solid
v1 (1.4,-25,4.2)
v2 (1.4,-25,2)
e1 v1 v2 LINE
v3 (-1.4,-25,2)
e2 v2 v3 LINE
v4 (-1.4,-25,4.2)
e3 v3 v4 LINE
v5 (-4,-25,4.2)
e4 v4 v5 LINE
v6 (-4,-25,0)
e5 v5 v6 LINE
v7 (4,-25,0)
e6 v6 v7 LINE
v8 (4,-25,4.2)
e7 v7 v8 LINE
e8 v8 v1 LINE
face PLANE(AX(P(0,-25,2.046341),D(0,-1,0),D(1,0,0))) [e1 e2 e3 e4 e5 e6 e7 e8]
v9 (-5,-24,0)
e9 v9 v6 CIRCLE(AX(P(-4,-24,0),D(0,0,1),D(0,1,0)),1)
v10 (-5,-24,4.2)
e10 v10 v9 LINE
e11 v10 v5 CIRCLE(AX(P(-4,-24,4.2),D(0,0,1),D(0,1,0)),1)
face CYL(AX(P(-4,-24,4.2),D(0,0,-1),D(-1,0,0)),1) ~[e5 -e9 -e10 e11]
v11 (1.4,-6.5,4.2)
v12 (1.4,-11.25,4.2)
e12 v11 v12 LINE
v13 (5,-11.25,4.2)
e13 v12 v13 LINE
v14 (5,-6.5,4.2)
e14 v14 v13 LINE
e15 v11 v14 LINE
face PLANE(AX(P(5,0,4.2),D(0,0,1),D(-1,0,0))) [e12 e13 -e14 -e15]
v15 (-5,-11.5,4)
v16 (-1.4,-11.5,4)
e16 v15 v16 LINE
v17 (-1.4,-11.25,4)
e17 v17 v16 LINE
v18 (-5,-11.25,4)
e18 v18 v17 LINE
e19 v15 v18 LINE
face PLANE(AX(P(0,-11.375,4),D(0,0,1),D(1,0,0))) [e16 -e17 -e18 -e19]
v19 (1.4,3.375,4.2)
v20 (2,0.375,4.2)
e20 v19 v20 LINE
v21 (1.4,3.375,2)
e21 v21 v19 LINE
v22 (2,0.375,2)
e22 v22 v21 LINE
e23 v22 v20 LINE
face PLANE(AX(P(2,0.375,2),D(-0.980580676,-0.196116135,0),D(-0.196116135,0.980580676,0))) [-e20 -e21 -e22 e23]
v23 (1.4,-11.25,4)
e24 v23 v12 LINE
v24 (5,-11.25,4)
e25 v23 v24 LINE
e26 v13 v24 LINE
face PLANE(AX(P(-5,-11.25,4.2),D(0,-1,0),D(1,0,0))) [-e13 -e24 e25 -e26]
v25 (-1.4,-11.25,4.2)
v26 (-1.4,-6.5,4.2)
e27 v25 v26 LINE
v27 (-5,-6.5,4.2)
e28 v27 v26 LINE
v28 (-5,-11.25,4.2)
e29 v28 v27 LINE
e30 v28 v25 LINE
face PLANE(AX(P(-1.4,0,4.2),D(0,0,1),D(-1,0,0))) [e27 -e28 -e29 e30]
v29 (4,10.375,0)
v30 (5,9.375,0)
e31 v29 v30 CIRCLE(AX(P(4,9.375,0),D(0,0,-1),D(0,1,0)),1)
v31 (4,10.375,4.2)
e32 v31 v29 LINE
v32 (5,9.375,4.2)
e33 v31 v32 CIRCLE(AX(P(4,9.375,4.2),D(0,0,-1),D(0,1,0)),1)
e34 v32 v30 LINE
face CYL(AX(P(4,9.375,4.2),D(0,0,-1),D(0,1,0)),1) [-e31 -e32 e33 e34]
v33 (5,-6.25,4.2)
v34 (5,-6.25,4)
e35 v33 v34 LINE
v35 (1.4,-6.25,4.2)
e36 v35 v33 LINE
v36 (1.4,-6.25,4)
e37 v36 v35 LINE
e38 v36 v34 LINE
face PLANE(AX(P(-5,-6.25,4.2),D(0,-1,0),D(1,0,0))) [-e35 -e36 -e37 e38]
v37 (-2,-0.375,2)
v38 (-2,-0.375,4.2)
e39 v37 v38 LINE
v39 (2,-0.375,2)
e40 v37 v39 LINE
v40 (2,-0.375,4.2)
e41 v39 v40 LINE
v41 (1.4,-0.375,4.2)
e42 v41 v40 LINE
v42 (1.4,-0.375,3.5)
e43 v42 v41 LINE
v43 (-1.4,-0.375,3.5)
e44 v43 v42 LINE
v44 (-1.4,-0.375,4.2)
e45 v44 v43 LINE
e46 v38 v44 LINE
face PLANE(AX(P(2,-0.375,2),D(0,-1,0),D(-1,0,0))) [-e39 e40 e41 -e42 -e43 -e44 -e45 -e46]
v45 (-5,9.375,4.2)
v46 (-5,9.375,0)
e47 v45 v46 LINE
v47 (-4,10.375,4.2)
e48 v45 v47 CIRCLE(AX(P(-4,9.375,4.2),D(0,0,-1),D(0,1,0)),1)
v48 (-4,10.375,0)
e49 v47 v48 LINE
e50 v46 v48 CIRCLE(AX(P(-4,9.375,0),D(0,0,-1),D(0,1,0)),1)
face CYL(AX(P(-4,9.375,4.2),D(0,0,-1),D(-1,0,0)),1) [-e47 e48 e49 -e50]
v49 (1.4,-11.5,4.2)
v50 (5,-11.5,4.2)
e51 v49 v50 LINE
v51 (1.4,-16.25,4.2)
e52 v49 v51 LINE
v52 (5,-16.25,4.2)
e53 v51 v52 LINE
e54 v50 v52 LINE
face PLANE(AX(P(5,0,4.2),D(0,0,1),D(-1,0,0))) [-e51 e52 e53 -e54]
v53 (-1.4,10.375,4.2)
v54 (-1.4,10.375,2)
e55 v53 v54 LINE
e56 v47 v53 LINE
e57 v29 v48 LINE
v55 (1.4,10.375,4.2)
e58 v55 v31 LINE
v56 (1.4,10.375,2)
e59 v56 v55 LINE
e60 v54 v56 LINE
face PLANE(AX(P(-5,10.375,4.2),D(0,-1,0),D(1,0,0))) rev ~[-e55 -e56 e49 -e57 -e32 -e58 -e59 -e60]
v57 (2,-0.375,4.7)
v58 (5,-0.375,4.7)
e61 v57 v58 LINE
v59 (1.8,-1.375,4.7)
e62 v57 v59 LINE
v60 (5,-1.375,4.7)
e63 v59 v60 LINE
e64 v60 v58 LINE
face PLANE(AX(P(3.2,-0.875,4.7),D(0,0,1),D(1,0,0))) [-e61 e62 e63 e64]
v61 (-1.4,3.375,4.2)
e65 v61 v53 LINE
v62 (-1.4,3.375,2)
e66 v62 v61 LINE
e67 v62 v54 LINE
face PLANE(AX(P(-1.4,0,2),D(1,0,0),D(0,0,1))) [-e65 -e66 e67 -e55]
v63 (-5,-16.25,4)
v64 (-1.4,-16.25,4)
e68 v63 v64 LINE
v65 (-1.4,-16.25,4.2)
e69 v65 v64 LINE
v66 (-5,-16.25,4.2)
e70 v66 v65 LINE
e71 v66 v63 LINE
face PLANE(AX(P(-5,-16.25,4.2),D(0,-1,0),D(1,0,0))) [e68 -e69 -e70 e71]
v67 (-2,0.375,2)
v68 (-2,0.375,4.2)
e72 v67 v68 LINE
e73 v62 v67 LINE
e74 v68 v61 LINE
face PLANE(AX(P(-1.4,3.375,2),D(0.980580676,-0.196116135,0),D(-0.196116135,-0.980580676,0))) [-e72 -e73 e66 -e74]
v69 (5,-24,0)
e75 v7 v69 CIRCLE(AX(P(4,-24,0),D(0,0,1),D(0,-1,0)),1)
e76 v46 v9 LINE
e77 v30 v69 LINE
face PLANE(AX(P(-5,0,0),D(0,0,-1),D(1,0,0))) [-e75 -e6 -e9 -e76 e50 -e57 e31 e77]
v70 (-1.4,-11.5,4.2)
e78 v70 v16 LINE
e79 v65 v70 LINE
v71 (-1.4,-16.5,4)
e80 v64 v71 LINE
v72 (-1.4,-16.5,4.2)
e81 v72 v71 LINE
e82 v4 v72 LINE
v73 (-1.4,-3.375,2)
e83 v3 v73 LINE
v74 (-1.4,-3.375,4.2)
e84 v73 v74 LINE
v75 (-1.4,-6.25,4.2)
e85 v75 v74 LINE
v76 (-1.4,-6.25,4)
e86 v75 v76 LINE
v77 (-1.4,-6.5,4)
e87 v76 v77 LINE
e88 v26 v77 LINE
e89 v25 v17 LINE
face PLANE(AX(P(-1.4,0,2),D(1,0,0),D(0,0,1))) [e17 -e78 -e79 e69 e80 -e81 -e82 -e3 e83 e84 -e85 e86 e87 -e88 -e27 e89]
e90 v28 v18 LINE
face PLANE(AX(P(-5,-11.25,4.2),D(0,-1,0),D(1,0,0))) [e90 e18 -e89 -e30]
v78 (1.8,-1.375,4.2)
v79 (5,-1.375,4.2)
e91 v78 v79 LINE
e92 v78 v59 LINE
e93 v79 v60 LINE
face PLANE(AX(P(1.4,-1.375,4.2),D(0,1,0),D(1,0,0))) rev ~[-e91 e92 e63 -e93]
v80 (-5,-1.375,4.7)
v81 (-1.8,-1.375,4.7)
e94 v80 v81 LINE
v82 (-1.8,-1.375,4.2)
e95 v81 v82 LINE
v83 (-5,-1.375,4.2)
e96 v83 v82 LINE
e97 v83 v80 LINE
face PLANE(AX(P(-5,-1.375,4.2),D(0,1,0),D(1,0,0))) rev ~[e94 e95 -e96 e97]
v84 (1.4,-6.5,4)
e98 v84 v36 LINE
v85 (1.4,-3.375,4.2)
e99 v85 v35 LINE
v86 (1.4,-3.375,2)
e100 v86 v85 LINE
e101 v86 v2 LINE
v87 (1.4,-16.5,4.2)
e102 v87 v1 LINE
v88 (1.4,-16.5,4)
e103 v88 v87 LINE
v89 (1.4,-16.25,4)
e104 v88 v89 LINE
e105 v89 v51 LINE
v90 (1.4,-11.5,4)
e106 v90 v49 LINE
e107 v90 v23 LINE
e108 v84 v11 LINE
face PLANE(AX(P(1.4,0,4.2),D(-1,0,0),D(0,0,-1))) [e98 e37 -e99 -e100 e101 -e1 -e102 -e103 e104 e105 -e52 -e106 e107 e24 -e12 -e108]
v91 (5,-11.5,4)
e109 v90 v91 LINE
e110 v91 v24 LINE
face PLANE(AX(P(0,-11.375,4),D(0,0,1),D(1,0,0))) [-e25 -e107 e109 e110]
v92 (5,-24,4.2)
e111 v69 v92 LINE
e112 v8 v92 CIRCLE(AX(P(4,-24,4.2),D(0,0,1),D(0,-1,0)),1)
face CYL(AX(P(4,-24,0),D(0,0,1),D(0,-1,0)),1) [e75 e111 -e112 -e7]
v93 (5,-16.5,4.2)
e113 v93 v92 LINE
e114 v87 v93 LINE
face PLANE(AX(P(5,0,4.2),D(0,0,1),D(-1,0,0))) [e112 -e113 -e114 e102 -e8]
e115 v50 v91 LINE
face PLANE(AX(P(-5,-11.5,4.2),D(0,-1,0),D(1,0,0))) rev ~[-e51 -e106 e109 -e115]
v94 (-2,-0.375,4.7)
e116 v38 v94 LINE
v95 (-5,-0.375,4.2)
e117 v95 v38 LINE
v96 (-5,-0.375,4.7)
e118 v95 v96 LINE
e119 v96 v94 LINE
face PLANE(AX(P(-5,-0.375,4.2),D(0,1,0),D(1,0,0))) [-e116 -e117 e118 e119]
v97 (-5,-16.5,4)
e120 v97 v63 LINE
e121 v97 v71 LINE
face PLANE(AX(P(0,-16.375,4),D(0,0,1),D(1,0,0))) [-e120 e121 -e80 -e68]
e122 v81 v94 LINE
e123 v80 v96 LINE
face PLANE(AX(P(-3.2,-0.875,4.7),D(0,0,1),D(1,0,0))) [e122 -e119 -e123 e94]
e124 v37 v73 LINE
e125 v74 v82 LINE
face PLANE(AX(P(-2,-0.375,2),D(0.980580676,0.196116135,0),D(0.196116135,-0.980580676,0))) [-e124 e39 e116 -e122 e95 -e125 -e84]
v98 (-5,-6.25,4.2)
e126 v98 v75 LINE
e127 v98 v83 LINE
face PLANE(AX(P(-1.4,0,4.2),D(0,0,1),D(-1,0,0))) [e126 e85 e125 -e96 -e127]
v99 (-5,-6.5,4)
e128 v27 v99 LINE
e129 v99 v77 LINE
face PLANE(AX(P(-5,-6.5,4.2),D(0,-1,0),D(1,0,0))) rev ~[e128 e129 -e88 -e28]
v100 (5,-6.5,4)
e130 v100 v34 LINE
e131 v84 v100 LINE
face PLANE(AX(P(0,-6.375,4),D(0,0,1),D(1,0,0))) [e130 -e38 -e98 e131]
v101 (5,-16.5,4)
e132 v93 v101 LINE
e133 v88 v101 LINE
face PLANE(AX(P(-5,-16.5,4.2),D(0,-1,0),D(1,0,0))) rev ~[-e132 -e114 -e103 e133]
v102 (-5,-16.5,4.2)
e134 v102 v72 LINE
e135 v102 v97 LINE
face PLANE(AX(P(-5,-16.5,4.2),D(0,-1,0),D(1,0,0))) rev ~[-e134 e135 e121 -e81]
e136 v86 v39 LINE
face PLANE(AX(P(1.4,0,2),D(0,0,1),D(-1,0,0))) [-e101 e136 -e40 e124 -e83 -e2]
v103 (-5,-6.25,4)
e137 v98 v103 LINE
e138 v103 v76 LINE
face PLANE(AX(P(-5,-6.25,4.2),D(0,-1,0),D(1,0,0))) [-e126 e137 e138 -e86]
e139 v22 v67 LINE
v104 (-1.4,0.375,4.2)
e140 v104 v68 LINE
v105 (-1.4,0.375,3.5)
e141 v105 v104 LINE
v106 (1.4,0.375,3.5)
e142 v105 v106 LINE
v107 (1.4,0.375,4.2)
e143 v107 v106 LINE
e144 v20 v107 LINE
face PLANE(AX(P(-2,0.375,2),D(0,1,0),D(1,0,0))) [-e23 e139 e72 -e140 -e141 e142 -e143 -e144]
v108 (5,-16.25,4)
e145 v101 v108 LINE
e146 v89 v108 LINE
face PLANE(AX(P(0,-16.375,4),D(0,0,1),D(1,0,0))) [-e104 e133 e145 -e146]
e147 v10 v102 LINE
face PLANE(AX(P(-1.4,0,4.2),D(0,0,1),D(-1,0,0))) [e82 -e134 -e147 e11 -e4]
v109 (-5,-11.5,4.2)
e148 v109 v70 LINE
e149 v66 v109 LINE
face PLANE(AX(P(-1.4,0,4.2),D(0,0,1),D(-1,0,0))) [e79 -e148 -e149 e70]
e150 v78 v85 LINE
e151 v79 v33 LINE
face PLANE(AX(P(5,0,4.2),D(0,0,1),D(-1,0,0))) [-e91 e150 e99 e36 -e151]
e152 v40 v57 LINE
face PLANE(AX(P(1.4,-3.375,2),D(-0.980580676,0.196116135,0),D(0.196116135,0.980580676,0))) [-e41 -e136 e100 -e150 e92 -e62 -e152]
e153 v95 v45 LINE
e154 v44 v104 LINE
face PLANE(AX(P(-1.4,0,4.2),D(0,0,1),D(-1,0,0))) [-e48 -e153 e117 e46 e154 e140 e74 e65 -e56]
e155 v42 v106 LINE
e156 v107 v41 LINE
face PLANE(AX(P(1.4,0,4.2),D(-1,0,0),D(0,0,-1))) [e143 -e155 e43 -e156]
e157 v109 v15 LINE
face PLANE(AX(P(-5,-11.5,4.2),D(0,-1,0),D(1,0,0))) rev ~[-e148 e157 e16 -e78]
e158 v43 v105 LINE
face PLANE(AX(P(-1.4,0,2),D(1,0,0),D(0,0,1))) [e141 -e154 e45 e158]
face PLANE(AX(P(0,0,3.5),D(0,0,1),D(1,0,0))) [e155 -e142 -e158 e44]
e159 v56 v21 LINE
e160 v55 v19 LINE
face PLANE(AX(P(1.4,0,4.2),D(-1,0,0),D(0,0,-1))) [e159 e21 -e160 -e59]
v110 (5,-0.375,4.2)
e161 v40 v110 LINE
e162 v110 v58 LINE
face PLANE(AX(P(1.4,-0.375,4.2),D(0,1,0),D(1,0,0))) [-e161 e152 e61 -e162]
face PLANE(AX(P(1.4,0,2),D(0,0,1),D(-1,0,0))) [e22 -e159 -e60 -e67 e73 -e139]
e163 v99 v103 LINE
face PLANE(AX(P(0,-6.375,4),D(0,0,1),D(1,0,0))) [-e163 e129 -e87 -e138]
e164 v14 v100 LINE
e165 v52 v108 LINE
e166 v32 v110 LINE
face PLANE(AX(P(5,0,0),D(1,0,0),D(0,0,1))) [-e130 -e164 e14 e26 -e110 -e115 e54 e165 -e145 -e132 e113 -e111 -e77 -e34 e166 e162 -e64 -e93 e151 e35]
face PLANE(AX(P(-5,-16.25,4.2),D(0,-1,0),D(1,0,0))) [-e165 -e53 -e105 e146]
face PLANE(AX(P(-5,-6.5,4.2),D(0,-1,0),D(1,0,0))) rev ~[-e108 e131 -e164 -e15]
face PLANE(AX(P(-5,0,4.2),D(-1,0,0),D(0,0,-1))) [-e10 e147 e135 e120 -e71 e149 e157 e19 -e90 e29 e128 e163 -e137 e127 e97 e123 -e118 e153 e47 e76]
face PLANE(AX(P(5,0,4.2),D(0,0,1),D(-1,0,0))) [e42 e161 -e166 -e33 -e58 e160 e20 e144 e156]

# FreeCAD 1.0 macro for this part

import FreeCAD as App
import Part
import Sketcher

V = App.Vector


def edges_at(feature, points):
    """Names of the edges that pass closest to the given points."""
    edges = feature.Shape.Edges
    near = lambda p: min(range(len(edges)), key=lambda i: edges[i].distToShape(Part.Vertex(*p))[0])
    return sorted({f"Edge{near(p) + 1}" for p in points})

doc = App.newDocument("Part")
body = doc.addObject("PartDesign::Body", "Body")

sketch1 = body.newObject("Sketcher::SketchObject", "Sketch")
sketch1.AttachmentSupport = (doc.getObject("XZ_Plane"), [""])
sketch1.MapMode = "FlatFace"
sketch1.addGeometry([
    Part.LineSegment(V(-5, 4.2, 0), V(-5, 0, 0)),
    Part.LineSegment(V(-5, 0, 0), V(5, 0, 0)),
    Part.LineSegment(V(5, 0, 0), V(5, 4.2, 0)),
    Part.LineSegment(V(5, 4.2, 0), V(1.4, 4.2, 0)),
    Part.LineSegment(V(1.4, 4.2, 0), V(1.4, 2, 0)),
    Part.LineSegment(V(1.4, 2, 0), V(-1.4, 2, 0)),
    Part.LineSegment(V(-1.4, 2, 0), V(-1.4, 4.2, 0)),
    Part.LineSegment(V(-1.4, 4.2, 0), V(-5, 4.2, 0)),
], False)
sketch1.addConstraint([
    Sketcher.Constraint("Coincident", 0, 2, 1, 1),
    Sketcher.Constraint("Coincident", 1, 2, 2, 1),
    Sketcher.Constraint("Coincident", 2, 2, 3, 1),
    Sketcher.Constraint("Coincident", 3, 2, 4, 1),
    Sketcher.Constraint("Coincident", 4, 2, 5, 1),
    Sketcher.Constraint("Coincident", 5, 2, 6, 1),
    Sketcher.Constraint("Coincident", 6, 2, 7, 1),
    Sketcher.Constraint("Coincident", 7, 2, 0, 1),
    Sketcher.Constraint("Vertical", 0),
    Sketcher.Constraint("Horizontal", 1),
    Sketcher.Constraint("Vertical", 2),
    Sketcher.Constraint("Horizontal", 3),
    Sketcher.Constraint("Vertical", 4),
    Sketcher.Constraint("Horizontal", 5),
    Sketcher.Constraint("Vertical", 6),
    Sketcher.Constraint("Horizontal", 7),
    Sketcher.Constraint("Symmetric", 0, 2, 1, 2, -1, 1),
    Sketcher.Constraint("Symmetric", 3, 2, 6, 2, -2),
    Sketcher.Constraint("DistanceX", 1, 1, 1, 2, 10.0),
    Sketcher.Constraint("DistanceX", 3, 2, 3, 1, 3.6),
    Sketcher.Constraint("DistanceY", 0, 2, 0, 1, 4.2),
    Sketcher.Constraint("DistanceY", 4, 2, 4, 1, 2.2),
])
pad1 = body.newObject("PartDesign::Pad", "Pad")
pad1.Profile = sketch1
pad1.Length = 50
pad1.Midplane = True

sketch2 = body.newObject("Sketcher::SketchObject", "Sketch001")
sketch2.AttachmentSupport = (doc.getObject("XY_Plane"), [""])
sketch2.MapMode = "FlatFace"
sketch2.AttachmentOffset = App.Placement(V(0, 0, 2), App.Rotation())
sketch2.addGeometry([
    Part.LineSegment(V(-1.4, 0.375, 0), V(-1.4, -0.375, 0)),
    Part.LineSegment(V(-1.4, -0.375, 0), V(1.4, -0.375, 0)),
    Part.LineSegment(V(1.4, -0.375, 0), V(1.4, 0.375, 0)),
    Part.LineSegment(V(1.4, 0.375, 0), V(-1.4, 0.375, 0)),
], False)
sketch2.addConstraint([
    Sketcher.Constraint("Coincident", 0, 2, 1, 1),
    Sketcher.Constraint("Coincident", 1, 2, 2, 1),
    Sketcher.Constraint("Coincident", 2, 2, 3, 1),
    Sketcher.Constraint("Coincident", 3, 2, 0, 1),
    Sketcher.Constraint("Vertical", 0),
    Sketcher.Constraint("Horizontal", 1),
    Sketcher.Constraint("Vertical", 2),
    Sketcher.Constraint("Horizontal", 3),
    Sketcher.Constraint("Symmetric", 0, 2, 2, 2, -1, 1),
    Sketcher.Constraint("DistanceX", 1, 1, 1, 2, 2.8),
    Sketcher.Constraint("DistanceY", 0, 2, 0, 1, 0.75),
])
pad2 = body.newObject("PartDesign::Pad", "Pad001")
pad2.Profile = sketch2
pad2.Length = 1.5

sketch3 = body.newObject("Sketcher::SketchObject", "Sketch002")
sketch3.AttachmentSupport = (doc.getObject("XY_Plane"), [""])
sketch3.MapMode = "FlatFace"
sketch3.AttachmentOffset = App.Placement(V(0, 0, 4.2), App.Rotation())
sketch3.addGeometry([
    Part.LineSegment(V(1.4, -0.375, 0), V(1.4, -1.375, 0)),
    Part.LineSegment(V(1.4, -1.375, 0), V(5, -1.375, 0)),
    Part.LineSegment(V(5, -1.375, 0), V(5, -0.375, 0)),
    Part.LineSegment(V(5, -0.375, 0), V(1.4, -0.375, 0)),
    Part.LineSegment(V(-5, -0.375, 0), V(-5, -1.375, 0)),
    Part.LineSegment(V(-5, -1.375, 0), V(-1.4, -1.375, 0)),
    Part.LineSegment(V(-1.4, -1.375, 0), V(-1.4, -0.375, 0)),
    Part.LineSegment(V(-1.4, -0.375, 0), V(-5, -0.375, 0)),
], False)
sketch3.addConstraint([
    Sketcher.Constraint("Coincident", 0, 2, 1, 1),
    Sketcher.Constraint("Coincident", 1, 2, 2, 1),
    Sketcher.Constraint("Coincident", 2, 2, 3, 1),
    Sketcher.Constraint("Coincident", 3, 2, 0, 1),
    Sketcher.Constraint("Coincident", 4, 2, 5, 1),
    Sketcher.Constraint("Coincident", 5, 2, 6, 1),
    Sketcher.Constraint("Coincident", 6, 2, 7, 1),
    Sketcher.Constraint("Coincident", 7, 2, 4, 1),
    Sketcher.Constraint("Vertical", 0),
    Sketcher.Constraint("Horizontal", 1),
    Sketcher.Constraint("Vertical", 2),
    Sketcher.Constraint("Horizontal", 3),
    Sketcher.Constraint("Vertical", 4),
    Sketcher.Constraint("Horizontal", 5),
    Sketcher.Constraint("Vertical", 6),
    Sketcher.Constraint("Horizontal", 7),
    Sketcher.Constraint("Symmetric", 1, 2, 4, 2, -2),
    Sketcher.Constraint("Symmetric", 3, 2, 6, 2, -2),
    Sketcher.Constraint("DistanceY", 0, 2, 0, 1, 1.0),
    Sketcher.Constraint("DistanceX", 1, 1, 1, 2, 3.6),
    Sketcher.Constraint("DistanceX", -1, 1, 1, 2, 5.0),
    Sketcher.Constraint("DistanceY", 0, 2, -1, 1, 1.375),
])
pad3 = body.newObject("PartDesign::Pad", "Pad002")
pad3.Profile = sketch3
pad3.Length = 0.5

sketch4 = body.newObject("Sketcher::SketchObject", "Sketch003")
sketch4.AttachmentSupport = (doc.getObject("XY_Plane"), [""])
sketch4.MapMode = "FlatFace"
sketch4.AttachmentOffset = App.Placement(V(0, 0, 4.2), App.Rotation())
sketch4.addGeometry([
    Part.LineSegment(V(-5, -6.25, 0), V(-5, -6.5, 0)),
    Part.LineSegment(V(-5, -6.5, 0), V(5, -6.5, 0)),
    Part.LineSegment(V(5, -6.5, 0), V(5, -6.25, 0)),
    Part.LineSegment(V(5, -6.25, 0), V(-5, -6.25, 0)),
    Part.LineSegment(V(-5, -11.25, 0), V(-5, -11.5, 0)),
    Part.LineSegment(V(-5, -11.5, 0), V(5, -11.5, 0)),
    Part.LineSegment(V(5, -11.5, 0), V(5, -11.25, 0)),
    Part.LineSegment(V(5, -11.25, 0), V(-5, -11.25, 0)),
    Part.LineSegment(V(-5, -16.25, 0), V(-5, -16.5, 0)),
    Part.LineSegment(V(-5, -16.5, 0), V(5, -16.5, 0)),
    Part.LineSegment(V(5, -16.5, 0), V(5, -16.25, 0)),
    Part.LineSegment(V(5, -16.25, 0), V(-5, -16.25, 0)),
], False)
sketch4.addConstraint([
    Sketcher.Constraint("Coincident", 0, 2, 1, 1),
    Sketcher.Constraint("Coincident", 1, 2, 2, 1),
    Sketcher.Constraint("Coincident", 2, 2, 3, 1),
    Sketcher.Constraint("Coincident", 3, 2, 0, 1),
    Sketcher.Constraint("Coincident", 4, 2, 5, 1),
    Sketcher.Constraint("Coincident", 5, 2, 6, 1),
    Sketcher.Constraint("Coincident", 6, 2, 7, 1),
    Sketcher.Constraint("Coincident", 7, 2, 4, 1),
    Sketcher.Constraint("Coincident", 8, 2, 9, 1),
    Sketcher.Constraint("Coincident", 9, 2, 10, 1),
    Sketcher.Constraint("Coincident", 10, 2, 11, 1),
    Sketcher.Constraint("Coincident", 11, 2, 8, 1),
    Sketcher.Constraint("Vertical", 0),
    Sketcher.Constraint("Horizontal", 1),
    Sketcher.Constraint("Vertical", 2),
    Sketcher.Constraint("Horizontal", 3),
    Sketcher.Constraint("Vertical", 4),
    Sketcher.Constraint("Horizontal", 5),
    Sketcher.Constraint("Vertical", 6),
    Sketcher.Constraint("Horizontal", 7),
    Sketcher.Constraint("Vertical", 8),
    Sketcher.Constraint("Horizontal", 9),
    Sketcher.Constraint("Vertical", 10),
    Sketcher.Constraint("Horizontal", 11),
    Sketcher.Constraint("Vertical", 3, 2, 4, 2),
    Sketcher.Constraint("Vertical", 2, 2, 5, 2),
    Sketcher.Constraint("Vertical", 7, 2, 8, 2),
    Sketcher.Constraint("Vertical", 6, 2, 9, 2),
    Sketcher.Constraint("Equal", 2, 4),
    Sketcher.Constraint("Equal", 6, 8),
    Sketcher.Constraint("DistanceX", 1, 1, 1, 2, 10.0),
    Sketcher.Constraint("DistanceX", 0, 2, -1, 1, 5.0),
    Sketcher.Constraint("DistanceY", 4, 2, 0, 2, 5.0),
    Sketcher.Constraint("DistanceY", 8, 2, 4, 2, 5.0),
    Sketcher.Constraint("DistanceY", 0, 2, 0, 1, 0.25),
    Sketcher.Constraint("DistanceY", 0, 2, -1, 1, 6.5),
])
pocket1 = body.newObject("PartDesign::Pocket", "Pocket")
pocket1.Profile = sketch4
pocket1.Length = 0.2

sketch5 = body.newObject("Sketcher::SketchObject", "Sketch004")
sketch5.AttachmentSupport = (doc.getObject("XY_Plane"), [""])
sketch5.MapMode = "FlatFace"
sketch5.AttachmentOffset = App.Placement(V(0, 0, 4.2), App.Rotation())
sketch5.addGeometry([
    Part.LineSegment(V(-5, 25, 0), V(-5, 10.375, 0)),
    Part.LineSegment(V(-5, 10.375, 0), V(5, 10.375, 0)),
    Part.LineSegment(V(5, 10.375, 0), V(5, 25, 0)),
    Part.LineSegment(V(5, 25, 0), V(-5, 25, 0)),
], False)
sketch5.addConstraint([
    Sketcher.Constraint("Coincident", 0, 2, 1, 1),
    Sketcher.Constraint("Coincident", 1, 2, 2, 1),
    Sketcher.Constraint("Coincident", 2, 2, 3, 1),
    Sketcher.Constraint("Coincident", 3, 2, 0, 1),
    Sketcher.Constraint("Vertical", 0),
    Sketcher.Constraint("Horizontal", 1),
    Sketcher.Constraint("Vertical", 2),
    Sketcher.Constraint("Horizontal", 3),
    Sketcher.Constraint("DistanceX", 1, 1, 1, 2, 10.0),
    Sketcher.Constraint("DistanceX", 0, 2, -1, 1, 5.0),
    Sketcher.Constraint("DistanceY", -1, 1, 2, 2, 25.0),
    Sketcher.Constraint("DistanceY", 0, 2, 0, 1, 14.625),
])
pocket2 = body.newObject("PartDesign::Pocket", "Pocket001")
pocket2.Profile = sketch5
pocket2.Type = "ThroughAll"
doc.recompute()

fillet = body.newObject("PartDesign::Fillet", "Fillet")
fillet.Base = (pocket2, edges_at(pocket2, [
    (-5, 10.375, 2.1),
    (5, 10.375, 2.1),
    (-5, -25, 2.1),
    (5, -25, 2.1),
]))
fillet.Radius = 1

sketch6 = body.newObject("Sketcher::SketchObject", "Sketch005")
sketch6.AttachmentSupport = (doc.getObject("XY_Plane"), [""])
sketch6.MapMode = "FlatFace"
sketch6.AttachmentOffset = App.Placement(V(0, 0, 2), App.Rotation())
sketch6.addGeometry([
    Part.LineSegment(V(2, -0.375, 0), V(-2, -0.375, 0)),
    Part.LineSegment(V(-2, -0.375, 0), V(-1.4, -3.375, 0)),
    Part.LineSegment(V(-1.4, -3.375, 0), V(1.4, -3.375, 0)),
    Part.LineSegment(V(1.4, -3.375, 0), V(2, -0.375, 0)),
    Part.LineSegment(V(-1.4, 3.375, 0), V(-2, 0.375, 0)),
    Part.LineSegment(V(-2, 0.375, 0), V(2, 0.375, 0)),
    Part.LineSegment(V(2, 0.375, 0), V(1.4, 3.375, 0)),
    Part.LineSegment(V(1.4, 3.375, 0), V(-1.4, 3.375, 0)),
], False)
sketch6.addConstraint([
    Sketcher.Constraint("Coincident", 0, 2, 1, 1),
    Sketcher.Constraint("Coincident", 1, 2, 2, 1),
    Sketcher.Constraint("Coincident", 2, 2, 3, 1),
    Sketcher.Constraint("Coincident", 3, 2, 0, 1),
    Sketcher.Constraint("Coincident", 4, 2, 5, 1),
    Sketcher.Constraint("Coincident", 5, 2, 6, 1),
    Sketcher.Constraint("Coincident", 6, 2, 7, 1),
    Sketcher.Constraint("Coincident", 7, 2, 4, 1),
    Sketcher.Constraint("Horizontal", 0),
    Sketcher.Constraint("Horizontal", 2),
    Sketcher.Constraint("Horizontal", 5),
    Sketcher.Constraint("Horizontal", 7),
    Sketcher.Constraint("Symmetric", 3, 2, 4, 2, -1, 1),
    Sketcher.Constraint("Symmetric", 1, 2, 6, 2, -1, 1),
    Sketcher.Constraint("Parallel", 3, 4),
    Sketcher.Constraint("Parallel", 1, 6),
    Sketcher.Constraint("Vertical", 0, 2, 4, 2),
    Sketcher.Constraint("Vertical", 2, 2, 6, 2),
    Sketcher.Constraint("DistanceX", 0, 2, 0, 1, 4.0),
    Sketcher.Constraint("DistanceX", 2, 1, 2, 2, 2.8),
    Sketcher.Constraint("DistanceY", 1, 2, 0, 2, 3.0),
    Sketcher.Constraint("DistanceY", 0, 2, 4, 2, 0.75),
])
pocket3 = body.newObject("PartDesign::Pocket", "Pocket002")
pocket3.Profile = sketch6
pocket3.Type = "ThroughAll"
pocket3.Reversed = True

doc.recompute()
